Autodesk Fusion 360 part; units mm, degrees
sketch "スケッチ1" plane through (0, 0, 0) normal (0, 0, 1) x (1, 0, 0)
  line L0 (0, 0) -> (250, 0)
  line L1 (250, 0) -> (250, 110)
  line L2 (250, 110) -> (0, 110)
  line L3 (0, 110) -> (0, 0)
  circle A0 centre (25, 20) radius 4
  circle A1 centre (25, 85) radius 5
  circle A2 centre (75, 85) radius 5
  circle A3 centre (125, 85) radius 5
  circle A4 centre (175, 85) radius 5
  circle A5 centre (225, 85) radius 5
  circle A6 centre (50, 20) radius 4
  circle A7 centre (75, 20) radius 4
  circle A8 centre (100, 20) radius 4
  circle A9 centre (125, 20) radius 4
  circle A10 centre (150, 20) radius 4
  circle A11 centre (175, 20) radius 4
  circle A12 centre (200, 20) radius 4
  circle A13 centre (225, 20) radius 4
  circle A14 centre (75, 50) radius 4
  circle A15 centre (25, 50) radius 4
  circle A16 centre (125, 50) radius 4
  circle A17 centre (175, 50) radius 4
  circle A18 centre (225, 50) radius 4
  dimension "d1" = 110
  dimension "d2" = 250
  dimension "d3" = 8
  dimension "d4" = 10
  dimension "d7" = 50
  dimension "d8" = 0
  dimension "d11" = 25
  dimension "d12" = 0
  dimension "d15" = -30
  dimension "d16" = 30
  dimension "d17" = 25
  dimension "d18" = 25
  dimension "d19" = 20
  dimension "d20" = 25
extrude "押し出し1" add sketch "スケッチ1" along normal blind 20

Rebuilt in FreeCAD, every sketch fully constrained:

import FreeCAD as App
import Part
import Sketcher

V = App.Vector

doc = App.newDocument("Part")
body = doc.addObject("PartDesign::Body", "Body")

sketch1 = body.newObject("Sketcher::SketchObject", "Sketch")
sketch1.AttachmentSupport = (doc.getObject("XY_Plane"), [""])
sketch1.MapMode = "FlatFace"
sketch1.addGeometry(Part.LineSegment(V(0, 110, 0), V(0, 0, 0)), False)
sketch1.addGeometry(Part.LineSegment(V(0, 0, 0), V(250, 0, 0)), False)
sketch1.addGeometry(Part.LineSegment(V(250, 0, 0), V(250, 110, 0)), False)
sketch1.addGeometry(Part.LineSegment(V(250, 110, 0), V(0, 110, 0)), False)
sketch1.addGeometry(Part.Circle(V(25, 20, 0), V(0, 0, 1), 4), False)
sketch1.addGeometry(Part.Circle(V(50, 20, 0), V(0, 0, 1), 4), False)
sketch1.addGeometry(Part.Circle(V(75, 20, 0), V(0, 0, 1), 4), False)
sketch1.addGeometry(Part.Circle(V(100, 20, 0), V(0, 0, 1), 4), False)
sketch1.addGeometry(Part.Circle(V(25, 50, 0), V(0, 0, 1), 4), False)
sketch1.addGeometry(Part.Circle(V(75, 50, 0), V(0, 0, 1), 4), False)
sketch1.addGeometry(Part.Circle(V(125, 20, 0), V(0, 0, 1), 4), False)
sketch1.addGeometry(Part.Circle(V(150, 20, 0), V(0, 0, 1), 4), False)
sketch1.addGeometry(Part.Circle(V(175, 20, 0), V(0, 0, 1), 4), False)
sketch1.addGeometry(Part.Circle(V(200, 20, 0), V(0, 0, 1), 4), False)
sketch1.addGeometry(Part.Circle(V(225, 20, 0), V(0, 0, 1), 4), False)
sketch1.addGeometry(Part.Circle(V(125, 50, 0), V(0, 0, 1), 4), False)
sketch1.addGeometry(Part.Circle(V(175, 50, 0), V(0, 0, 1), 4), False)
sketch1.addGeometry(Part.Circle(V(225, 50, 0), V(0, 0, 1), 4), False)
sketch1.addGeometry(Part.Circle(V(25, 85, 0), V(0, 0, 1), 5), False)
sketch1.addGeometry(Part.Circle(V(75, 85, 0), V(0, 0, 1), 5), False)
sketch1.addGeometry(Part.Circle(V(125, 85, 0), V(0, 0, 1), 5), False)
sketch1.addGeometry(Part.Circle(V(175, 85, 0), V(0, 0, 1), 5), False)
sketch1.addGeometry(Part.Circle(V(225, 85, 0), V(0, 0, 1), 5), False)
sketch1.addConstraint(Sketcher.Constraint("Coincident", 0, 2, 1, 1))
sketch1.addConstraint(Sketcher.Constraint("Coincident", 1, 2, 2, 1))
sketch1.addConstraint(Sketcher.Constraint("Coincident", 2, 2, 3, 1))
sketch1.addConstraint(Sketcher.Constraint("Coincident", 3, 2, 0, 1))
sketch1.addConstraint(Sketcher.Constraint("Vertical", 0))
sketch1.addConstraint(Sketcher.Constraint("Horizontal", 1))
sketch1.addConstraint(Sketcher.Constraint("Vertical", 2))
sketch1.addConstraint(Sketcher.Constraint("Horizontal", 3))
sketch1.addConstraint(Sketcher.Constraint("Coincident", 0, 2, -1, 1))
sketch1.addConstraint(Sketcher.Constraint("Equal", 4, 5))
sketch1.addConstraint(Sketcher.Constraint("Equal", 5, 6))
sketch1.addConstraint(Sketcher.Constraint("Equal", 6, 7))
sketch1.addConstraint(Sketcher.Constraint("Equal", 7, 8))
sketch1.addConstraint(Sketcher.Constraint("Equal", 8, 9))
sketch1.addConstraint(Sketcher.Constraint("Equal", 9, 10))
sketch1.addConstraint(Sketcher.Constraint("Equal", 10, 11))
sketch1.addConstraint(Sketcher.Constraint("Equal", 11, 12))
sketch1.addConstraint(Sketcher.Constraint("Equal", 12, 13))
sketch1.addConstraint(Sketcher.Constraint("Equal", 13, 14))
sketch1.addConstraint(Sketcher.Constraint("Equal", 14, 15))
sketch1.addConstraint(Sketcher.Constraint("Equal", 15, 16))
sketch1.addConstraint(Sketcher.Constraint("Equal", 16, 17))
sketch1.addConstraint(Sketcher.Constraint("Equal", 18, 19))
sketch1.addConstraint(Sketcher.Constraint("Equal", 19, 20))
sketch1.addConstraint(Sketcher.Constraint("Equal", 20, 21))
sketch1.addConstraint(Sketcher.Constraint("Equal", 21, 22))
sketch1.addConstraint(Sketcher.Constraint("Horizontal", 4, 3, 5, 3))
sketch1.addConstraint(Sketcher.Constraint("Horizontal", 5, 3, 6, 3))
sketch1.addConstraint(Sketcher.Constraint("Horizontal", 6, 3, 7, 3))
sketch1.addConstraint(Sketcher.Constraint("Horizontal", 8, 3, 9, 3))
sketch1.addConstraint(Sketcher.Constraint("Horizontal", 7, 3, 10, 3))
sketch1.addConstraint(Sketcher.Constraint("Horizontal", 10, 3, 11, 3))
sketch1.addConstraint(Sketcher.Constraint("Horizontal", 11, 3, 12, 3))
sketch1.addConstraint(Sketcher.Constraint("Horizontal", 12, 3, 13, 3))
sketch1.addConstraint(Sketcher.Constraint("Horizontal", 13, 3, 14, 3))
sketch1.addConstraint(Sketcher.Constraint("Horizontal", 9, 3, 15, 3))
sketch1.addConstraint(Sketcher.Constraint("Horizontal", 15, 3, 16, 3))
sketch1.addConstraint(Sketcher.Constraint("Horizontal", 16, 3, 17, 3))
sketch1.addConstraint(Sketcher.Constraint("Horizontal", 18, 3, 19, 3))
sketch1.addConstraint(Sketcher.Constraint("Horizontal", 19, 3, 20, 3))
sketch1.addConstraint(Sketcher.Constraint("Horizontal", 20, 3, 21, 3))
sketch1.addConstraint(Sketcher.Constraint("Horizontal", 21, 3, 22, 3))
sketch1.addConstraint(Sketcher.Constraint("Vertical", 4, 3, 8, 3))
sketch1.addConstraint(Sketcher.Constraint("Vertical", 6, 3, 9, 3))
sketch1.addConstraint(Sketcher.Constraint("Vertical", 10, 3, 15, 3))
sketch1.addConstraint(Sketcher.Constraint("Vertical", 12, 3, 16, 3))
sketch1.addConstraint(Sketcher.Constraint("Vertical", 14, 3, 17, 3))
sketch1.addConstraint(Sketcher.Constraint("Vertical", 8, 3, 18, 3))
sketch1.addConstraint(Sketcher.Constraint("Vertical", 9, 3, 19, 3))
sketch1.addConstraint(Sketcher.Constraint("Vertical", 15, 3, 20, 3))
sketch1.addConstraint(Sketcher.Constraint("Vertical", 16, 3, 21, 3))
sketch1.addConstraint(Sketcher.Constraint("Vertical", 17, 3, 22, 3))
sketch1.addConstraint(Sketcher.Constraint("Diameter", 4, 8.0))
sketch1.addConstraint(Sketcher.Constraint("Diameter", 18, 10.0))
sketch1.addConstraint(Sketcher.Constraint("DistanceX", 1, 1, 1, 2, 250.0))
sketch1.addConstraint(Sketcher.Constraint("DistanceY", 0, 2, 0, 1, 110.0))
sketch1.addConstraint(Sketcher.Constraint("DistanceX", -1, 1, 4, 3, 25.0))
sketch1.addConstraint(Sketcher.Constraint("DistanceY", -1, 1, 4, 3, 20.0))
sketch1.addConstraint(Sketcher.Constraint("DistanceX", -1, 1, 5, 3, 50.0))
sketch1.addConstraint(Sketcher.Constraint("DistanceY", -1, 1, 8, 3, 50.0))
sketch1.addConstraint(Sketcher.Constraint("DistanceX", 5, 3, 6, 3, 25.0))
sketch1.addConstraint(Sketcher.Constraint("DistanceX", 6, 3, 7, 3, 25.0))
sketch1.addConstraint(Sketcher.Constraint("DistanceX", 7, 3, 10, 3, 25.0))
sketch1.addConstraint(Sketcher.Constraint("DistanceX", 10, 3, 11, 3, 25.0))
sketch1.addConstraint(Sketcher.Constraint("DistanceX", 11, 3, 12, 3, 25.0))
sketch1.addConstraint(Sketcher.Constraint("DistanceX", 12, 3, 13, 3, 25.0))
sketch1.addConstraint(Sketcher.Constraint("DistanceX", 13, 3, 14, 3, 25.0))
sketch1.addConstraint(Sketcher.Constraint("DistanceY", 22, 3, 2, 2, 25.0))
pad1 = body.newObject("PartDesign::Pad", "Pad")
pad1.Profile = sketch1
pad1.Length = 20

doc.recompute()
